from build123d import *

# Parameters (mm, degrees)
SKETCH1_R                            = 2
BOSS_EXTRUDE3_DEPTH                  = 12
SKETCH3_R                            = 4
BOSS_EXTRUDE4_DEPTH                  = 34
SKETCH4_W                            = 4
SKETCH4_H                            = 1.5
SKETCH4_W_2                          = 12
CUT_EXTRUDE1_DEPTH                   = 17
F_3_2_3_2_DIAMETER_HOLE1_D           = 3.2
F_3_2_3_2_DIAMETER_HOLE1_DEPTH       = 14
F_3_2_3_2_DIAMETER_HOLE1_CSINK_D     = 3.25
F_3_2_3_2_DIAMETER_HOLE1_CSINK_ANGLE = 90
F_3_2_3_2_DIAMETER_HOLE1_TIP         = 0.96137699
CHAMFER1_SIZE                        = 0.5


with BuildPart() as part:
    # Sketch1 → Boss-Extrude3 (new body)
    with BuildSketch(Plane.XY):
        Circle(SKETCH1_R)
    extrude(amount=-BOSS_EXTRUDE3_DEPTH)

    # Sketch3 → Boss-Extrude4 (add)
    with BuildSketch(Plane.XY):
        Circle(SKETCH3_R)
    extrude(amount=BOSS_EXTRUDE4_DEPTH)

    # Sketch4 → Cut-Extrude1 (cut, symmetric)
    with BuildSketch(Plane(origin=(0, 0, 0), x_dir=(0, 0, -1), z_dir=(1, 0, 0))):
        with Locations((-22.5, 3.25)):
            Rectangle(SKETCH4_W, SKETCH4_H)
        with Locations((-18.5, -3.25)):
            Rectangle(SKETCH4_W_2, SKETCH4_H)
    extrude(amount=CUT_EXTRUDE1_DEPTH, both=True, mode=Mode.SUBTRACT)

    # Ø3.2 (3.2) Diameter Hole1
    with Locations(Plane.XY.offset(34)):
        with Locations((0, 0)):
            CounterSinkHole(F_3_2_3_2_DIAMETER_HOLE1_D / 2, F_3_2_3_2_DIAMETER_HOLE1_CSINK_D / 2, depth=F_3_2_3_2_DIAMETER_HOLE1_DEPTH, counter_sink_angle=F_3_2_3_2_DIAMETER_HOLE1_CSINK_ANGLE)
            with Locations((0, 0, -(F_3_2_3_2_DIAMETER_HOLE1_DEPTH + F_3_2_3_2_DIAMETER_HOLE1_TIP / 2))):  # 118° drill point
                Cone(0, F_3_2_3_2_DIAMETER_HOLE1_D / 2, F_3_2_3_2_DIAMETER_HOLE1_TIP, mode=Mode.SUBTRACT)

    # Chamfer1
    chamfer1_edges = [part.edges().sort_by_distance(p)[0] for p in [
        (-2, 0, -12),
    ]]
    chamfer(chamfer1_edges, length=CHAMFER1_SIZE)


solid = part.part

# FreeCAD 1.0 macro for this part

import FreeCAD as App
import Part
import Sketcher
Q = App.Units.Quantity


def edges_at(feature, points):
    """Names of the edges that pass closest to the given points."""
    edges = feature.Shape.Edges
    near = lambda p: min(range(len(edges)), key=lambda i: edges[i].distToShape(Part.Vertex(*p))[0])
    return sorted({f"Edge{near(p) + 1}" for p in points})


def add_polygon(sketch, points):
    """Adds a closed chain of lines whose ends are joined by coincident constraints."""
    first, n = sketch.GeometryCount, len(points)
    for a, b in zip(points, points[1:] + points[:1]):
        sketch.addGeometry(Part.LineSegment(App.Vector(*a, 0), App.Vector(*b, 0)), False)
    for i in range(n):
        sketch.addConstraint(Sketcher.Constraint("Coincident", first + i, 2, first + (i + 1) % n, 1))

doc = App.newDocument("Part")
body = doc.addObject("PartDesign::Body", "Body")

# Sketch on XY plane
sketch1 = doc.addObject("Sketcher::SketchObject", "Sketch")
body.addObject(sketch1)
sketch1.AttachmentSupport = (doc.XY_Plane, [""])
sketch1.MapMode = "FlatFace"
sketch1.addGeometry(Part.Circle(App.Vector(0, 0, 0), App.Vector(0, 0, 1), 2), False)
sketch1.addConstraint(Sketcher.Constraint("Coincident", 0, 3, -1, 1))
sketch1.addConstraint(Sketcher.Constraint("Diameter", 0, Q("4 mm")))
pad1 = doc.addObject("PartDesign::Pad", "Pad")
body.addObject(pad1)
pad1.Profile = sketch1
pad1.Length = 12
pad1.Reversed = True

# Sketch on XY plane
sketch2 = doc.addObject("Sketcher::SketchObject", "Sketch001")
body.addObject(sketch2)
sketch2.AttachmentSupport = (doc.XY_Plane, [""])
sketch2.MapMode = "FlatFace"
sketch2.addGeometry(Part.Circle(App.Vector(0, 0, 0), App.Vector(0, 0, 1), 4), False)
sketch2.addConstraint(Sketcher.Constraint("Coincident", 0, 3, -1, 1))
sketch2.addConstraint(Sketcher.Constraint("Diameter", 0, Q("8 mm")))
pad2 = doc.addObject("PartDesign::Pad", "Pad001")
body.addObject(pad2)
pad2.Profile = sketch2
pad2.Length = 34

# Sketch on YZ plane
sketch3 = doc.addObject("Sketcher::SketchObject", "Sketch002")
body.addObject(sketch3)
sketch3.AttachmentSupport = (doc.YZ_Plane, [""])
sketch3.MapMode = "FlatFace"
add_polygon(sketch3, [(4, 24.5), (2.5, 24.5), (2.5, 20.5), (4, 20.5)])  # lines 0-3
add_polygon(sketch3, [(-2.5, 24.5), (-4, 24.5), (-4, 12.5), (-2.5, 12.5)])  # lines 4-7
sketch3.addConstraint(Sketcher.Constraint("Horizontal", 0))
sketch3.addConstraint(Sketcher.Constraint("Vertical", 1))
sketch3.addConstraint(Sketcher.Constraint("Horizontal", 2))
sketch3.addConstraint(Sketcher.Constraint("Vertical", 3))
sketch3.addConstraint(Sketcher.Constraint("Horizontal", 4))
sketch3.addConstraint(Sketcher.Constraint("Vertical", 5))
sketch3.addConstraint(Sketcher.Constraint("Horizontal", 6))
sketch3.addConstraint(Sketcher.Constraint("Vertical", 7))
sketch3.addConstraint(Sketcher.Constraint("Symmetric", 3, 2, 4, 2, -2))
sketch3.addConstraint(Sketcher.Constraint("Equal", 2, 4))
sketch3.addConstraint(Sketcher.Constraint("DistanceY", 1, 2, 1, 1, Q("4 mm")))
sketch3.addConstraint(Sketcher.Constraint("DistanceY", 5, 2, 5, 1, Q("12 mm")))
sketch3.addConstraint(Sketcher.Constraint("DistanceX", 0, 2, 0, 1, Q("1.5 mm")))
sketch3.addConstraint(Sketcher.Constraint("DistanceX", -1, 1, 2, 2, Q("4 mm")))
sketch3.addConstraint(Sketcher.Constraint("DistanceY", -1, 1, 0, 2, Q("24.5 mm")))
pocket1 = doc.addObject("PartDesign::Pocket", "Pocket")
body.addObject(pocket1)
pocket1.Profile = sketch3
pocket1.Length = 34
pocket1.Midplane = True

# Sketch on XY plane
sketch4 = doc.addObject("Sketcher::SketchObject", "Sketch003")
body.addObject(sketch4)
sketch4.AttachmentSupport = (doc.XY_Plane, [""])
sketch4.MapMode = "FlatFace"
sketch4.AttachmentOffset = App.Placement(App.Vector(0, 0, 34), App.Rotation())
sketch4.addGeometry(Part.Circle(App.Vector(0, 0, 0), App.Vector(0, 0, 1), 1.6), False)
sketch4.addConstraint(Sketcher.Constraint("Coincident", 0, 3, -1, 1))
sketch4.addConstraint(Sketcher.Constraint("Diameter", 0, Q("3.2 mm")))
doc.recompute()
hole = doc.addObject("PartDesign::Hole", "Hole")
body.addObject(hole)
hole.Profile = sketch4
hole.ThreadType = "None"
hole.Diameter = 3.2
hole.DepthType = "Dimension"
hole.Depth = 14
hole.DrillPoint = "Angled"
hole.DrillPointAngle = 118
hole.HoleCutType = "Countersink"
hole.HoleCutDiameter = 3.25
hole.HoleCutCountersinkAngle = 90
doc.recompute()

chamfer = doc.addObject("PartDesign::Chamfer", "Chamfer")
body.addObject(chamfer)
chamfer.Base = (hole, edges_at(hole, [(-2, 0, -12)]))
chamfer.Size = 0.5

doc.recompute()
